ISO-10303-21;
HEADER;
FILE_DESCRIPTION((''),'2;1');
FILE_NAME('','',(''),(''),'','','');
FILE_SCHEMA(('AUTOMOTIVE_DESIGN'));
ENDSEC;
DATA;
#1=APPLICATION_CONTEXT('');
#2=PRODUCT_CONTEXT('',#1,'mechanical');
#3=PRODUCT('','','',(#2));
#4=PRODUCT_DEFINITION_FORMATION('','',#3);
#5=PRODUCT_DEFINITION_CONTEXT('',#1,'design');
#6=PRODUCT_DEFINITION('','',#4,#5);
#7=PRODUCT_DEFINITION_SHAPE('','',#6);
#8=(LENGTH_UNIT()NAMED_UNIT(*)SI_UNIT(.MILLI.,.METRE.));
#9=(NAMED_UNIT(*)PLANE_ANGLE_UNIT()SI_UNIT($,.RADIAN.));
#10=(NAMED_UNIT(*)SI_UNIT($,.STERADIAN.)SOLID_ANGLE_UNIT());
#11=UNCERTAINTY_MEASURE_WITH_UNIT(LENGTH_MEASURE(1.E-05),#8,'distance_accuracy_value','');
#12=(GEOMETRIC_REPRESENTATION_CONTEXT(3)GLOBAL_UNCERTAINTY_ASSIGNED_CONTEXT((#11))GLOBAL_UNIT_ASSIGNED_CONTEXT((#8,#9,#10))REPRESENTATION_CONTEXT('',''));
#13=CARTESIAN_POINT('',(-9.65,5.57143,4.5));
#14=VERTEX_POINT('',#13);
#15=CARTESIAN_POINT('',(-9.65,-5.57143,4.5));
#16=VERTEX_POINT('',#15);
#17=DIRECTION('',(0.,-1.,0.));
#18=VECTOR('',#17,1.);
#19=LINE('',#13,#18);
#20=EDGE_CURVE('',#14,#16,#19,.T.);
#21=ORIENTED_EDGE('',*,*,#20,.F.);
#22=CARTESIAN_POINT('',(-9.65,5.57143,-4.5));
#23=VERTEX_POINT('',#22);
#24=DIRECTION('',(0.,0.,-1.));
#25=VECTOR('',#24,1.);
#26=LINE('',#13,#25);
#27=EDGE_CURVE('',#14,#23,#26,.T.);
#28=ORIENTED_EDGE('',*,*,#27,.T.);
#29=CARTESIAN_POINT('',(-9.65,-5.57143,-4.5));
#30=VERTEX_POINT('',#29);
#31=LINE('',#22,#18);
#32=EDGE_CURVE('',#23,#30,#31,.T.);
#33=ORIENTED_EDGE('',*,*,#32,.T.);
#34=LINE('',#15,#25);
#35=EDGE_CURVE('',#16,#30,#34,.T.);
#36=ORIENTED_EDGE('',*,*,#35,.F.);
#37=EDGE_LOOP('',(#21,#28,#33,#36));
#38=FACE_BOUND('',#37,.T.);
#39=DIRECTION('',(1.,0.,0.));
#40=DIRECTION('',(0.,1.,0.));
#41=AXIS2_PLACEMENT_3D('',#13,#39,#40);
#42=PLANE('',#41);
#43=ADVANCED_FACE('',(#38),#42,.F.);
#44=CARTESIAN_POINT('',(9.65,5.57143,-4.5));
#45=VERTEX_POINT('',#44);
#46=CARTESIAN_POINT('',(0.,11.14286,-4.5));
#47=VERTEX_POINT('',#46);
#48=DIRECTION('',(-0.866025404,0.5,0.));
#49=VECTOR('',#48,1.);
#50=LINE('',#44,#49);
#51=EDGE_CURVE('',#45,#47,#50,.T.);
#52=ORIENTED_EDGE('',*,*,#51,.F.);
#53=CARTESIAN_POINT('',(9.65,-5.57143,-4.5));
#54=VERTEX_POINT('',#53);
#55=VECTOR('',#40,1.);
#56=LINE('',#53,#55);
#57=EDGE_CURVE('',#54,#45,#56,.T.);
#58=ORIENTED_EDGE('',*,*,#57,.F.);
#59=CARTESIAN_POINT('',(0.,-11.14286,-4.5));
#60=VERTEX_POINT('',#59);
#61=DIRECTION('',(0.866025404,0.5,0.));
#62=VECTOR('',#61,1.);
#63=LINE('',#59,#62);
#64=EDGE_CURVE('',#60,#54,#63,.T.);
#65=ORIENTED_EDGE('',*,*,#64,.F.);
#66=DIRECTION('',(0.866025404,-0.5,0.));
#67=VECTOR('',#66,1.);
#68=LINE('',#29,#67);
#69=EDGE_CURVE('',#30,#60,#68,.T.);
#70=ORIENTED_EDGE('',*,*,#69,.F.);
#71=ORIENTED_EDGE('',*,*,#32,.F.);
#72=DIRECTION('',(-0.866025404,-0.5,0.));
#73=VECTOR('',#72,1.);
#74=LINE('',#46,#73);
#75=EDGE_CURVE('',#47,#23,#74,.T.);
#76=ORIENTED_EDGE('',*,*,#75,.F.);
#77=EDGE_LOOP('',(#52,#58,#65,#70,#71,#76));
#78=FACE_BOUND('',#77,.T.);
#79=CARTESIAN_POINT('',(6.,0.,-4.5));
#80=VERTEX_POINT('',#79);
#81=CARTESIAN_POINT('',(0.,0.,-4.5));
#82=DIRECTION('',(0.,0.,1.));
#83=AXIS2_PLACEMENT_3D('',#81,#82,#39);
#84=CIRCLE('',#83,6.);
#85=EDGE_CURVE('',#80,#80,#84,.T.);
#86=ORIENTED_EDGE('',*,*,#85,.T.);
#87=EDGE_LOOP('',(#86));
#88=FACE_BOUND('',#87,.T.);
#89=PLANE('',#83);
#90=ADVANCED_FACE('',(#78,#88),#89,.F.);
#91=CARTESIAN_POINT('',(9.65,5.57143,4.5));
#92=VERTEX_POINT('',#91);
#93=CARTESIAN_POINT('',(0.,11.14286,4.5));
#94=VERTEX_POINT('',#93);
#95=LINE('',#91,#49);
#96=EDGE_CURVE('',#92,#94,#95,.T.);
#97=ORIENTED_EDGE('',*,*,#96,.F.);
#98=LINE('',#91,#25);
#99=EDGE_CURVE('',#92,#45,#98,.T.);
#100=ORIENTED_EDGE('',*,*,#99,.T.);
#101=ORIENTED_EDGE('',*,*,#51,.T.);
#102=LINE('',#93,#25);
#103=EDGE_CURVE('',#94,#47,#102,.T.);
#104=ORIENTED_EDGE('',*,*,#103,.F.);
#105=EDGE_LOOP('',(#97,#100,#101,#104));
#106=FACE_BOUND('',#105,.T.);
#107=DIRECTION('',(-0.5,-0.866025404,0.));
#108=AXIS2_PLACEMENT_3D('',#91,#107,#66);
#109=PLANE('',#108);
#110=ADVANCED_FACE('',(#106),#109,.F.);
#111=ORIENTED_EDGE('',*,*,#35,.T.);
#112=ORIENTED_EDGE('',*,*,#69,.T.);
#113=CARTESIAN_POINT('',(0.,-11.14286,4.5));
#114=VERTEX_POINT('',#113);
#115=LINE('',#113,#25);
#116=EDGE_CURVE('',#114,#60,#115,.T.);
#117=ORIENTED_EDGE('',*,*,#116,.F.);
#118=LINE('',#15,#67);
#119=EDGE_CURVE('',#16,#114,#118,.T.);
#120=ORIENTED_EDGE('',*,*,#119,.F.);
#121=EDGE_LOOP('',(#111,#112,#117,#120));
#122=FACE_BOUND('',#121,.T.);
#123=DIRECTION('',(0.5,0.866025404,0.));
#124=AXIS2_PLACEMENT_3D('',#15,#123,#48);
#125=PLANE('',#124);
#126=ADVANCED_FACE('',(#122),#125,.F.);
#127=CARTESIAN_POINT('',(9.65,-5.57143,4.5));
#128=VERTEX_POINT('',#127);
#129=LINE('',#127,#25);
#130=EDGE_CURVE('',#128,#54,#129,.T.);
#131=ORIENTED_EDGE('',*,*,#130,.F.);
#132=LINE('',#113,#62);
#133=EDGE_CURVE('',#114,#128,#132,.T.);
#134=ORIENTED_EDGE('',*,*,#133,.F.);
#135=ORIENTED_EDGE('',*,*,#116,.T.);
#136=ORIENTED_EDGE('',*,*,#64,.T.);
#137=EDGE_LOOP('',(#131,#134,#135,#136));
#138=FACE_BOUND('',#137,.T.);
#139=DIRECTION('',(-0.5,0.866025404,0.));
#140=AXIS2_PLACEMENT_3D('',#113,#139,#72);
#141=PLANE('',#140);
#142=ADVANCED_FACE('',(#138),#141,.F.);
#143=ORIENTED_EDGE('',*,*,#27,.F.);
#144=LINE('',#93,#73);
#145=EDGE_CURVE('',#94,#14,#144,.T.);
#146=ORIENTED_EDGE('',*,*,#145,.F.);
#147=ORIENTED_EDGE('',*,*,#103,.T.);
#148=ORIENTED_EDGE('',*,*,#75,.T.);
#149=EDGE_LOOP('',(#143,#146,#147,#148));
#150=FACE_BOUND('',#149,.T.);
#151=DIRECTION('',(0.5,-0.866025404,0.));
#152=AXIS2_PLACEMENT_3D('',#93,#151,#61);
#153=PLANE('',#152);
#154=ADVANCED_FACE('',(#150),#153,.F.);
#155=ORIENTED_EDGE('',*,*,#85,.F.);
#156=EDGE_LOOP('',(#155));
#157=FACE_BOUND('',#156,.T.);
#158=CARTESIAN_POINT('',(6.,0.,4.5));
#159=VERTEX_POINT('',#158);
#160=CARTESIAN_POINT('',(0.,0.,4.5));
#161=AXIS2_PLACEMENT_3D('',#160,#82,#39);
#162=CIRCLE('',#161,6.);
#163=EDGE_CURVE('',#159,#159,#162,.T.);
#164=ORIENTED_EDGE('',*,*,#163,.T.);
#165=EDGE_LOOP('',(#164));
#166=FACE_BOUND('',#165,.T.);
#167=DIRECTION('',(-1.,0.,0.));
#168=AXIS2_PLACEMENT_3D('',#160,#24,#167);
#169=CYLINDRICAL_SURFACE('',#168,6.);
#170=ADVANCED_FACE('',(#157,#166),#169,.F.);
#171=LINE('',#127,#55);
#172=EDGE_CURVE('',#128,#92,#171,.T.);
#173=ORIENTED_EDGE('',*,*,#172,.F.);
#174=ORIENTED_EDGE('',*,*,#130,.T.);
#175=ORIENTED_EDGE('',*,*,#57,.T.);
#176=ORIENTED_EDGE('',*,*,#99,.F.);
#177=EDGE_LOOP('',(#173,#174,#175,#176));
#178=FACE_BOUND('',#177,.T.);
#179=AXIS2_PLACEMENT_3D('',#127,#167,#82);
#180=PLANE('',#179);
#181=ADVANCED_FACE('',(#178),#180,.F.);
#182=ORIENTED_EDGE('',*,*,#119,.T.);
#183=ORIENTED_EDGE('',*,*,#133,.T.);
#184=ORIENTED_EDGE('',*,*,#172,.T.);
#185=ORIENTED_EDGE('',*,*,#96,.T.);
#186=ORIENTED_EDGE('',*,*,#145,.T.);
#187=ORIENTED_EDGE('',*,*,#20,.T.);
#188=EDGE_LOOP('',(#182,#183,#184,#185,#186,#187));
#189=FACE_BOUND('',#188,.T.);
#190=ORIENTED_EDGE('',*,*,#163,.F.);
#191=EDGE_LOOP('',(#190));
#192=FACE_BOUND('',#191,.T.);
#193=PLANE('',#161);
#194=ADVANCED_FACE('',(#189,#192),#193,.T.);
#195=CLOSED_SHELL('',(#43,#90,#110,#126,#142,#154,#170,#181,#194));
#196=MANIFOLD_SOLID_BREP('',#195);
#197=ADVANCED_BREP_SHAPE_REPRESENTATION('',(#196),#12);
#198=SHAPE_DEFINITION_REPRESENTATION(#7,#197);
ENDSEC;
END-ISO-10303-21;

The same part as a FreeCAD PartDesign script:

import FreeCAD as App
import Part
import Sketcher
Q = App.Units.Quantity

doc = App.newDocument("Part")
body = doc.addObject("PartDesign::Body", "Body")

# Sketch on XY plane
sketch1 = doc.addObject("Sketcher::SketchObject", "Sketch")
body.addObject(sketch1)
sketch1.AttachmentSupport = (doc.XY_Plane, [""])
sketch1.MapMode = "FlatFace"
sketch1.addGeometry(Part.LineSegment(App.Vector(0, 11, 0), App.Vector(-10, 6, 0)), False)
sketch1.addGeometry(Part.LineSegment(App.Vector(-10, 6, 0), App.Vector(-10, -6, 0)), False)
sketch1.addGeometry(Part.LineSegment(App.Vector(-10, -6, 0), App.Vector(0, -11, 0)), False)
sketch1.addGeometry(Part.LineSegment(App.Vector(0, -11, 0), App.Vector(10, -6, 0)), False)
sketch1.addGeometry(Part.LineSegment(App.Vector(10, -6, 0), App.Vector(10, 6, 0)), False)
sketch1.addGeometry(Part.LineSegment(App.Vector(10, 6, 0), App.Vector(0, 11, 0)), False)
sketch1.addGeometry(Part.Circle(App.Vector(0, 0, 0), App.Vector(0, 0, 1), 6), False)
sketch1.addConstraint(Sketcher.Constraint("Coincident", 0, 2, 1, 1))
sketch1.addConstraint(Sketcher.Constraint("Coincident", 1, 2, 2, 1))
sketch1.addConstraint(Sketcher.Constraint("Coincident", 2, 2, 3, 1))
sketch1.addConstraint(Sketcher.Constraint("Coincident", 3, 2, 4, 1))
sketch1.addConstraint(Sketcher.Constraint("Coincident", 4, 2, 5, 1))
sketch1.addConstraint(Sketcher.Constraint("Coincident", 5, 2, 0, 1))
sketch1.addConstraint(Sketcher.Constraint("Vertical", 1))
sketch1.addConstraint(Sketcher.Constraint("Vertical", 4))
sketch1.addConstraint(Sketcher.Constraint("Coincident", 6, 3, -1, 1))
sketch1.addConstraint(Sketcher.Constraint("Symmetric", 0, 2, 3, 2, -1, 1))
sketch1.addConstraint(Sketcher.Constraint("Symmetric", 2, 2, 5, 2, -1, 1))
sketch1.addConstraint(Sketcher.Constraint("PointOnObject", 2, 2, -2))
sketch1.addConstraint(Sketcher.Constraint("Parallel", 2, 5))
sketch1.addConstraint(Sketcher.Constraint("Horizontal", 1, 2, 3, 2))
sketch1.addConstraint(Sketcher.Constraint("Diameter", 6, Q("12 mm")))
sketch1.addConstraint(Sketcher.Constraint("Angle", 0, Q("-150 deg")))
sketch1.addConstraint(Sketcher.Constraint("DistanceX", 1, 2, 3, 2, Q("19.3 mm")))
sketch1.addConstraint(Sketcher.Constraint("DistanceY", 1, 2, 1, 1, Q("11.14286 mm")))
pad1 = doc.addObject("PartDesign::Pad", "Pad")
body.addObject(pad1)
pad1.Profile = sketch1
pad1.Length = 9
pad1.Midplane = True

doc.recompute()
